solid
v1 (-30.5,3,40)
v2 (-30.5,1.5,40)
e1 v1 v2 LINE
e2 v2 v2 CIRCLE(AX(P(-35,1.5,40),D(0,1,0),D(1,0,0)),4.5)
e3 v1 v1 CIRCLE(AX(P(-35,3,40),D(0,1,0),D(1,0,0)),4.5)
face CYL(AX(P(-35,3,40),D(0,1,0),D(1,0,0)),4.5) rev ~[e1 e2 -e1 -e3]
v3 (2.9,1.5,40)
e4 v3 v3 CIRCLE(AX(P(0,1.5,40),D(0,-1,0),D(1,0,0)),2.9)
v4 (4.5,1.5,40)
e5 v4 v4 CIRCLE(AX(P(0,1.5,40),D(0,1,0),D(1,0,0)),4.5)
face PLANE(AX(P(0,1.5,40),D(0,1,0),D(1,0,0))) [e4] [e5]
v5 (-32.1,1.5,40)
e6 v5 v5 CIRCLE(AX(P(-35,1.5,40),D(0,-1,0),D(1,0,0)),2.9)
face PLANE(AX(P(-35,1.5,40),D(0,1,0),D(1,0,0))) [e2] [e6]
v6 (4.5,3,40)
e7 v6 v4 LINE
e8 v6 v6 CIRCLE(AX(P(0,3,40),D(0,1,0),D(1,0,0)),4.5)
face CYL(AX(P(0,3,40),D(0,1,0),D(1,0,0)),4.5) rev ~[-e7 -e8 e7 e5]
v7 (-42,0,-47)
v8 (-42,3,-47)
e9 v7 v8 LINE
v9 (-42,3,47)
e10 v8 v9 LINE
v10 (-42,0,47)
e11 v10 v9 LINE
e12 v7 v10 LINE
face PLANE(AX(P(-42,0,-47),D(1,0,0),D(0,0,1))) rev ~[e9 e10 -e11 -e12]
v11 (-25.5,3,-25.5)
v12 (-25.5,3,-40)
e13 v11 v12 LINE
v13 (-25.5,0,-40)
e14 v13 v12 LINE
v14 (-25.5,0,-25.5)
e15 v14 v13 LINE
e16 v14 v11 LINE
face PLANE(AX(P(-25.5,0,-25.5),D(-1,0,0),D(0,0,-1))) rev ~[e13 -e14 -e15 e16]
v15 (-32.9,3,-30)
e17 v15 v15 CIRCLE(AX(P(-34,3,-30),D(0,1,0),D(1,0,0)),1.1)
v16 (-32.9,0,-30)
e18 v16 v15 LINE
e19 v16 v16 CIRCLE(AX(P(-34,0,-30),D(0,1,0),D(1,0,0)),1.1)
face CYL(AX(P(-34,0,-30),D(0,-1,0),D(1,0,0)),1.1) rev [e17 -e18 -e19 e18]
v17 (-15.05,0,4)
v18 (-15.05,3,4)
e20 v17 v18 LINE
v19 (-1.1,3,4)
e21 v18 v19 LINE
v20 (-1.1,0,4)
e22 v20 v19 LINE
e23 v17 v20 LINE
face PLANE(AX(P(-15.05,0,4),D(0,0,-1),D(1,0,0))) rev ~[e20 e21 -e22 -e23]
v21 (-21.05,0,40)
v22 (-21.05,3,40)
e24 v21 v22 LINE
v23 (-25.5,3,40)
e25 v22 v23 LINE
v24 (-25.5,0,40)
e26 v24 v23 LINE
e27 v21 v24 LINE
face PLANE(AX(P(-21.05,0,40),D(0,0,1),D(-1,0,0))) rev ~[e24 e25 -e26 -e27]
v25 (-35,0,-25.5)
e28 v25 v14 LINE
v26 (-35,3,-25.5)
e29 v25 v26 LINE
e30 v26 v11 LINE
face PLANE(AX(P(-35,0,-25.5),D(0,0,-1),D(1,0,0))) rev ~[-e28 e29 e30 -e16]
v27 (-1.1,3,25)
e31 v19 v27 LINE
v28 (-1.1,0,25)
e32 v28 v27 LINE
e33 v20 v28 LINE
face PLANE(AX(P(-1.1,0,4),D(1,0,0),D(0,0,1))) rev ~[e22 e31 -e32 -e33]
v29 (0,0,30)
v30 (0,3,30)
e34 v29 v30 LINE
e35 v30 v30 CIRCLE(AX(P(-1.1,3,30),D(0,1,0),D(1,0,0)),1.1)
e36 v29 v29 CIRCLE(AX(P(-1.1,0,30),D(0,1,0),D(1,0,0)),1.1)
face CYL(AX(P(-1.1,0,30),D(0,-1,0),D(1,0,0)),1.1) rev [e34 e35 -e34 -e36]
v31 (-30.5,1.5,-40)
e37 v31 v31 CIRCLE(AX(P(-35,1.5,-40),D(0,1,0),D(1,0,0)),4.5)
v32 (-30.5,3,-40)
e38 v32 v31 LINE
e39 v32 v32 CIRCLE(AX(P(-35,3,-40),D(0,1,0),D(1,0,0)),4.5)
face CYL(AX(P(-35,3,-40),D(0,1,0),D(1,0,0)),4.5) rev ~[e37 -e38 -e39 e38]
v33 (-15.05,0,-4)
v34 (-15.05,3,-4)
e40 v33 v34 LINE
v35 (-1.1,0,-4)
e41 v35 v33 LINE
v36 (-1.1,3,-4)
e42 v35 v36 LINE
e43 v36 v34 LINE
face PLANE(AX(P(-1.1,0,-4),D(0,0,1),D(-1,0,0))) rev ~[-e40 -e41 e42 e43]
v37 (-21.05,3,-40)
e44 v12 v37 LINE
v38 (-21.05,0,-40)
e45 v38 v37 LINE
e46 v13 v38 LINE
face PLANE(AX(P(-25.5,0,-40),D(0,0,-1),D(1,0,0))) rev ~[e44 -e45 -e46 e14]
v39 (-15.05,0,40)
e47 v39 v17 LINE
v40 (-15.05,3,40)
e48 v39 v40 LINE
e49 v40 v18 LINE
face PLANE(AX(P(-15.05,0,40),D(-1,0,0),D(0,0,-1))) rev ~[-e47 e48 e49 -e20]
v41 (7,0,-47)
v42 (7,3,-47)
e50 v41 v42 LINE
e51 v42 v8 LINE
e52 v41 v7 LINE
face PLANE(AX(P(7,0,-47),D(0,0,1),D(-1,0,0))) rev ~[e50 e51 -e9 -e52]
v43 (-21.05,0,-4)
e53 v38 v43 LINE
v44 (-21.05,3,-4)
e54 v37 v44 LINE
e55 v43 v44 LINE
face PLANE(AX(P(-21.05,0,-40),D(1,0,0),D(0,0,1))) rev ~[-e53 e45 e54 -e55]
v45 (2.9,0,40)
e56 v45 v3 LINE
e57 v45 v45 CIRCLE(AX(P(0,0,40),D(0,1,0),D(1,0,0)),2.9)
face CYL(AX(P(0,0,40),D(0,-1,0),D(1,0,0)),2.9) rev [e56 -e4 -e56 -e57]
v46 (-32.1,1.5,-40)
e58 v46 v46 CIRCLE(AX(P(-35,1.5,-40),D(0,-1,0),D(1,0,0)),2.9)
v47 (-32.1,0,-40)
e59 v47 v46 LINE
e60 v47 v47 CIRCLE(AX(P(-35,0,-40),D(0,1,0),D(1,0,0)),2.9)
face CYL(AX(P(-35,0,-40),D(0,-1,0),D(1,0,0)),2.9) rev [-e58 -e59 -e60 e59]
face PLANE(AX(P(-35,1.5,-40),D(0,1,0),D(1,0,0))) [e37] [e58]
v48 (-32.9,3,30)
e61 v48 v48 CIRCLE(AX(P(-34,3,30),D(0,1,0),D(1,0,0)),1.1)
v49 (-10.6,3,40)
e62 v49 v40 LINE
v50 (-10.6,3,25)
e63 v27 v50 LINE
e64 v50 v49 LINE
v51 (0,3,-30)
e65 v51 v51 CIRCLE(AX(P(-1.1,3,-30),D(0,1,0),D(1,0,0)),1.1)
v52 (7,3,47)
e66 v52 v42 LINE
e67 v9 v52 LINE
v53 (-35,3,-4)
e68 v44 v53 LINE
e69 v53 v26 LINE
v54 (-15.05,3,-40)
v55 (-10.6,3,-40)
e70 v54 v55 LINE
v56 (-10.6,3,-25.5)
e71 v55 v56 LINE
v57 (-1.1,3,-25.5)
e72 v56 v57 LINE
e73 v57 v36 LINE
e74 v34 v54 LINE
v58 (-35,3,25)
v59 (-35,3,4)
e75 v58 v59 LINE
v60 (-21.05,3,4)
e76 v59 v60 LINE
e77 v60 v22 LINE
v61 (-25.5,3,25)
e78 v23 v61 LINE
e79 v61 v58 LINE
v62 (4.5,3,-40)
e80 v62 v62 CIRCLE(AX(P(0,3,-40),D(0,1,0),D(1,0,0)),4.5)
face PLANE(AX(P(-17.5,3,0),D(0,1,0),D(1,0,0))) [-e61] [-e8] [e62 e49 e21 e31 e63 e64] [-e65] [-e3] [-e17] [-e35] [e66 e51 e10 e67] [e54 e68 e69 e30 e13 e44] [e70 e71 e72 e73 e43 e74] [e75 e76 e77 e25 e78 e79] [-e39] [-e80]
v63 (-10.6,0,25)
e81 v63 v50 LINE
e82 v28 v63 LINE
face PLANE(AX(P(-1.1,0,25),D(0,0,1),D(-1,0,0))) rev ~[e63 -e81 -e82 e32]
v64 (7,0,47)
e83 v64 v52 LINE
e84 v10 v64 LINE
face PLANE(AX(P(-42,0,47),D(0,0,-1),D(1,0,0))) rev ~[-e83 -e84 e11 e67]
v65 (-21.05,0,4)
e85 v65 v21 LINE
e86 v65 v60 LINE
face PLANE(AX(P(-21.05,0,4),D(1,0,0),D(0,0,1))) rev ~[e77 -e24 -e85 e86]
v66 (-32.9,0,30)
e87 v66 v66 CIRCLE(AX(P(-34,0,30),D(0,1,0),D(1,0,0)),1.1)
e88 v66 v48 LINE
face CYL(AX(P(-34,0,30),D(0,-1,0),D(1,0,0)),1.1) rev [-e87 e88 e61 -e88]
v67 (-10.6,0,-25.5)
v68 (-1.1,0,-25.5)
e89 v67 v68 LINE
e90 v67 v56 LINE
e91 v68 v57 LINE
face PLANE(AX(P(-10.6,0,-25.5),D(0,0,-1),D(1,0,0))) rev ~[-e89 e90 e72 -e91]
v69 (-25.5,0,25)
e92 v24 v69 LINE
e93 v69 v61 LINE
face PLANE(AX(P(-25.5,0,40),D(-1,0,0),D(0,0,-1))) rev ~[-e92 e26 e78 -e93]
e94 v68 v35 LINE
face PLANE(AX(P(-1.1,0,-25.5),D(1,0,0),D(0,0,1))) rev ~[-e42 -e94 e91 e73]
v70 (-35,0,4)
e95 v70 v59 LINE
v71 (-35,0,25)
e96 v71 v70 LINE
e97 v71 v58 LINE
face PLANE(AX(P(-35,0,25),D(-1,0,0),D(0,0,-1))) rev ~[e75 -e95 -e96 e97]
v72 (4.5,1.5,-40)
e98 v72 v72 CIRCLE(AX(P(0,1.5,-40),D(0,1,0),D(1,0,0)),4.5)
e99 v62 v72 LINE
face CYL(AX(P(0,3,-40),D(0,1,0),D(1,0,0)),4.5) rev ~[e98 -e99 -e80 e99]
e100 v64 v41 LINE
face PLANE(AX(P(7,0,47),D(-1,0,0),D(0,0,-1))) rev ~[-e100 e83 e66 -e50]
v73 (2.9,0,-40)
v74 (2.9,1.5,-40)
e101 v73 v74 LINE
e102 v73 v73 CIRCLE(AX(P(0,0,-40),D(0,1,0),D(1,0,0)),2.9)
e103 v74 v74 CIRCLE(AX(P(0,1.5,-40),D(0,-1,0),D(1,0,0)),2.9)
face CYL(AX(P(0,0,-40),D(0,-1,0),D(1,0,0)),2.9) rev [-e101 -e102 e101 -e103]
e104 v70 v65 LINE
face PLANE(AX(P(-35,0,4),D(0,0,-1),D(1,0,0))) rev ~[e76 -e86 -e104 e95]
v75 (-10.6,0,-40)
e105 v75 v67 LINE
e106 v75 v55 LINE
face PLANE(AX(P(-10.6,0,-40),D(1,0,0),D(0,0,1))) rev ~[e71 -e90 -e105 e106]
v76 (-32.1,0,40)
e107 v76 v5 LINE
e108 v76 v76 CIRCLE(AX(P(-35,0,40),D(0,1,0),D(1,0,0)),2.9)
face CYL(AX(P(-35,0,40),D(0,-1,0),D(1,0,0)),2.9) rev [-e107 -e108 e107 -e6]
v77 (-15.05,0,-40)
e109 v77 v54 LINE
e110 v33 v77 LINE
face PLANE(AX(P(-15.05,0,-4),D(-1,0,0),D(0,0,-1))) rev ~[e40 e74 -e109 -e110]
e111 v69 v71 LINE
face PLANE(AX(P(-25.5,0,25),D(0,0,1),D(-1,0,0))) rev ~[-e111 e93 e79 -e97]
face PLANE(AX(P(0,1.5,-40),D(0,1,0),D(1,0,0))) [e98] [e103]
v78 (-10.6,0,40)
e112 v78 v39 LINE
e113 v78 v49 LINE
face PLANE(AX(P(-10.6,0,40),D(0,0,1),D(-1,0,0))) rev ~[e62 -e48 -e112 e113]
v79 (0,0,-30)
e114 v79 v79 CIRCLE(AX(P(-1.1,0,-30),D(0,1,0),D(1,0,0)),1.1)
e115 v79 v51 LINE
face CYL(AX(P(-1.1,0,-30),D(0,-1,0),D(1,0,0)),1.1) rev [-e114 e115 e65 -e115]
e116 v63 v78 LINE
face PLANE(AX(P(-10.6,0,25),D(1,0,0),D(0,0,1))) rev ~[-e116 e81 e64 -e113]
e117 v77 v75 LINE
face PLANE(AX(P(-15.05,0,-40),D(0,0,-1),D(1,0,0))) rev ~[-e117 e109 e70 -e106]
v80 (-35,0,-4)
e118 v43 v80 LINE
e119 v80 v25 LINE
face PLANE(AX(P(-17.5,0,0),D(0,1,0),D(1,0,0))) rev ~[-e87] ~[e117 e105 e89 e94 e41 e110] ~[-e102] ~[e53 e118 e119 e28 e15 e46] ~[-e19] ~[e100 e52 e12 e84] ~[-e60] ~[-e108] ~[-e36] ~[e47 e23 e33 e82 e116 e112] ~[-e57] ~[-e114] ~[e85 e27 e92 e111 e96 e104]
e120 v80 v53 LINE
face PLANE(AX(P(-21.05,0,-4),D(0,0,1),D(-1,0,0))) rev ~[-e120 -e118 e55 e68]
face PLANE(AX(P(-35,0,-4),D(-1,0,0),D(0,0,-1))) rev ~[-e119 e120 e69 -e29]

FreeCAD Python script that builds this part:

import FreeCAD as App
import Part
import Sketcher

V = App.Vector
Q = App.Units.Quantity


def add_polygon(sketch, points):
    """Adds a closed chain of lines whose ends are joined by coincident constraints."""
    first, n = sketch.GeometryCount, len(points)
    for a, b in zip(points, points[1:] + points[:1]):
        sketch.addGeometry(Part.LineSegment(App.Vector(*a, 0), App.Vector(*b, 0)), False)
    for i in range(n):
        sketch.addConstraint(Sketcher.Constraint("Coincident", first + i, 2, first + (i + 1) % n, 1))

doc = App.newDocument("Part")
body = doc.addObject("PartDesign::Body", "Body")

# Sketch on XZ plane
sketch1 = body.newObject("Sketcher::SketchObject", "Sketch")
sketch1.AttachmentSupport = (doc.getObject("XZ_Plane"), [""])
sketch1.MapMode = "FlatFace"
add_polygon(sketch1, [(-42, -47), (-42, 47), (7, 47), (7, -47)])  # lines 0-3
sketch1.addGeometry(Part.Circle(V(-35, 40, 0), V(0, 0, 1), 2.9), False)  # 4
sketch1.addGeometry(Part.Circle(V(-34, 30, 0), V(0, 0, 1), 1.1), False)  # 5
add_polygon(sketch1, [(-25.5, 25), (-35, 25), (-35, 4), (-21.1, 4), (-21.1, 40), (-25.5, 40)])  # lines 6-11
add_polygon(sketch1, [(-15.1, 4), (-1.1, 4), (-1.1, 25), (-10.6, 25), (-10.6, 40), (-15.1, 40)])  # lines 12-17
sketch1.addGeometry(Part.Circle(V(0, 40, 0), V(0, 0, 1), 2.9), False)  # 18
sketch1.addGeometry(Part.Circle(V(-1.1, 30, 0), V(0, 0, 1), 1.1), False)  # 19
sketch1.addGeometry(Part.Circle(V(-34, -30, 0), V(0, 0, 1), 1.1), False)  # 20
add_polygon(sketch1, [(-21.1, -40), (-21.1, -4), (-35, -4), (-35, -25.5), (-25.5, -25.5), (-25.5, -40)])  # lines 21-26
sketch1.addGeometry(Part.Circle(V(-35, -40, 0), V(0, 0, 1), 2.9), False)  # 27
add_polygon(sketch1, [(-10.6, -40), (-10.6, -25.5), (-1.1, -25.5), (-1.1, -4), (-15.1, -4), (-15.1, -40)])  # lines 28-33
sketch1.addGeometry(Part.Circle(V(-1.1, -30, 0), V(0, 0, 1), 1.1), False)  # 34
sketch1.addGeometry(Part.Circle(V(0, -40, 0), V(0, 0, 1), 2.9), False)  # 35
sketch1.addConstraint([
    Sketcher.Constraint("Vertical", 0),
    Sketcher.Constraint("Horizontal", 1),
    Sketcher.Constraint("Vertical", 2),
    Sketcher.Constraint("Horizontal", 3),
    Sketcher.Constraint("Horizontal", 6),
    Sketcher.Constraint("Vertical", 7),
    Sketcher.Constraint("Horizontal", 8),
    Sketcher.Constraint("Vertical", 9),
    Sketcher.Constraint("Horizontal", 10),
    Sketcher.Constraint("Vertical", 11),
    Sketcher.Constraint("Horizontal", 12),
    Sketcher.Constraint("Vertical", 13),
    Sketcher.Constraint("Horizontal", 14),
    Sketcher.Constraint("Vertical", 15),
    Sketcher.Constraint("Horizontal", 16),
    Sketcher.Constraint("Vertical", 17),
    Sketcher.Constraint("Vertical", 21),
    Sketcher.Constraint("Horizontal", 22),
    Sketcher.Constraint("Vertical", 23),
    Sketcher.Constraint("Horizontal", 24),
    Sketcher.Constraint("Vertical", 25),
    Sketcher.Constraint("Horizontal", 26),
    Sketcher.Constraint("Vertical", 28),
    Sketcher.Constraint("Horizontal", 29),
    Sketcher.Constraint("Vertical", 30),
    Sketcher.Constraint("Horizontal", 31),
    Sketcher.Constraint("Vertical", 32),
    Sketcher.Constraint("Horizontal", 33),
    Sketcher.Constraint("Equal", 4, 18),
    Sketcher.Constraint("Equal", 5, 19),
    Sketcher.Constraint("Equal", 19, 20),
    Sketcher.Constraint("Equal", 18, 27),
    Sketcher.Constraint("Equal", 20, 34),
    Sketcher.Constraint("Equal", 27, 35),
    Sketcher.Constraint("Symmetric", 18, 3, 35, 3, -1, 1),
    Sketcher.Constraint("Symmetric", 5, 3, 20, 3, -1),
    Sketcher.Constraint("Symmetric", 4, 3, 27, 3, -1),
    Sketcher.Constraint("Symmetric", 19, 3, 34, 3, -1),
    Sketcher.Constraint("Symmetric", 8, 2, 21, 2, -1),
    Sketcher.Constraint("Symmetric", 10, 2, 25, 2, -1),
    Sketcher.Constraint("Symmetric", 12, 2, 30, 2, -1),
    Sketcher.Constraint("Symmetric", 16, 2, 32, 2, -1),
    Sketcher.Constraint("PointOnObject", 18, 3, -2),
    Sketcher.Constraint("Horizontal", 4, 3, 18, 3),
    Sketcher.Constraint("Horizontal", 5, 3, 19, 3),
    Sketcher.Constraint("Horizontal", 18, 3, 9, 2),
    Sketcher.Constraint("Horizontal", 8, 2, 12, 2),
    Sketcher.Constraint("Horizontal", 11, 2, 13, 2),
    Sketcher.Constraint("Horizontal", 10, 2, 15, 2),
    Sketcher.Constraint("Horizontal", 24, 2, 28, 2),
    Sketcher.Constraint("Vertical", 27, 3, 6, 2),
    Sketcher.Constraint("Vertical", 34, 3, 12, 2),
    Sketcher.Constraint("Vertical", 7, 2, 22, 2),
    Sketcher.Constraint("Vertical", 15, 2, 28, 2),
    Sketcher.Constraint("Equal", 8, 12),
    Sketcher.Constraint("Equal", 6, 14),
    Sketcher.Constraint("Diameter", 4, Q("5.8 mm")),
    Sketcher.Constraint("Diameter", 5, Q("2.2 mm")),
    Sketcher.Constraint("DistanceX", 1, 1, 1, 2, Q("49 mm")),
    Sketcher.Constraint("DistanceY", 0, 1, 0, 2, Q("94 mm")),
    Sketcher.Constraint("DistanceY", 7, 2, 7, 1, Q("21 mm")),
    Sketcher.Constraint("DistanceY", 9, 1, 9, 2, Q("36 mm")),
    Sketcher.Constraint("DistanceX", 6, 2, 6, 1, Q("9.5 mm")),
    Sketcher.Constraint("DistanceY", 23, 2, 23, 1, Q("21.5 mm")),
    Sketcher.Constraint("DistanceX", 4, 3, -1, 1, Q("35 mm")),
    Sketcher.Constraint("DistanceY", -1, 1, 4, 3, Q("40 mm")),
    Sketcher.Constraint("DistanceX", 5, 3, -1, 1, Q("34 mm")),
    Sketcher.Constraint("DistanceY", -1, 1, 5, 3, Q("30 mm")),
    Sketcher.Constraint("DistanceX", 0, 2, -1, 1, Q("42 mm")),
    Sketcher.Constraint("DistanceY", -1, 1, 0, 2, Q("47 mm")),
    Sketcher.Constraint("DistanceX", 9, 2, 16, 2, Q("6 mm")),
    Sketcher.Constraint("DistanceX", 8, 1, 8, 2, Q("13.95 mm")),
])
pad1 = body.newObject("PartDesign::Pad", "Pad")
pad1.Profile = sketch1
pad1.Length = 3
pad1.Reversed = True

# Sketch on XZ plane
sketch2 = body.newObject("Sketcher::SketchObject", "Sketch001")
sketch2.AttachmentSupport = (doc.getObject("XZ_Plane"), [""])
sketch2.MapMode = "FlatFace"
sketch2.AttachmentOffset = App.Placement(V(0, 0, -3), App.Rotation())
sketch2.addGeometry([
    Part.Circle(V(-35, -40, 0), V(0, 0, 1), 4.5),
    Part.Circle(V(0, -40, 0), V(0, 0, 1), 4.5),
    Part.Circle(V(0, 40, 0), V(0, 0, 1), 4.5),
    Part.Circle(V(-35, 40, 0), V(0, 0, 1), 4.5),
], False)
sketch2.addConstraint([
    Sketcher.Constraint("Equal", 0, 1),
    Sketcher.Constraint("Equal", 1, 2),
    Sketcher.Constraint("Equal", 2, 3),
    Sketcher.Constraint("Symmetric", 1, 3, 2, 3, -1, 1),
    Sketcher.Constraint("Symmetric", 0, 3, 3, 3, -1),
    Sketcher.Constraint("PointOnObject", 1, 3, -2),
    Sketcher.Constraint("Horizontal", 0, 3, 1, 3),
    Sketcher.Constraint("Diameter", 0, Q("9 mm")),
    Sketcher.Constraint("DistanceX", 0, 3, -1, 1, Q("35 mm")),
    Sketcher.Constraint("DistanceY", 0, 3, -1, 1, Q("40 mm")),
])
pocket1 = body.newObject("PartDesign::Pocket", "Pocket")
pocket1.Profile = sketch2
pocket1.Length = 1.5
pocket1.Reversed = True

doc.recompute()
